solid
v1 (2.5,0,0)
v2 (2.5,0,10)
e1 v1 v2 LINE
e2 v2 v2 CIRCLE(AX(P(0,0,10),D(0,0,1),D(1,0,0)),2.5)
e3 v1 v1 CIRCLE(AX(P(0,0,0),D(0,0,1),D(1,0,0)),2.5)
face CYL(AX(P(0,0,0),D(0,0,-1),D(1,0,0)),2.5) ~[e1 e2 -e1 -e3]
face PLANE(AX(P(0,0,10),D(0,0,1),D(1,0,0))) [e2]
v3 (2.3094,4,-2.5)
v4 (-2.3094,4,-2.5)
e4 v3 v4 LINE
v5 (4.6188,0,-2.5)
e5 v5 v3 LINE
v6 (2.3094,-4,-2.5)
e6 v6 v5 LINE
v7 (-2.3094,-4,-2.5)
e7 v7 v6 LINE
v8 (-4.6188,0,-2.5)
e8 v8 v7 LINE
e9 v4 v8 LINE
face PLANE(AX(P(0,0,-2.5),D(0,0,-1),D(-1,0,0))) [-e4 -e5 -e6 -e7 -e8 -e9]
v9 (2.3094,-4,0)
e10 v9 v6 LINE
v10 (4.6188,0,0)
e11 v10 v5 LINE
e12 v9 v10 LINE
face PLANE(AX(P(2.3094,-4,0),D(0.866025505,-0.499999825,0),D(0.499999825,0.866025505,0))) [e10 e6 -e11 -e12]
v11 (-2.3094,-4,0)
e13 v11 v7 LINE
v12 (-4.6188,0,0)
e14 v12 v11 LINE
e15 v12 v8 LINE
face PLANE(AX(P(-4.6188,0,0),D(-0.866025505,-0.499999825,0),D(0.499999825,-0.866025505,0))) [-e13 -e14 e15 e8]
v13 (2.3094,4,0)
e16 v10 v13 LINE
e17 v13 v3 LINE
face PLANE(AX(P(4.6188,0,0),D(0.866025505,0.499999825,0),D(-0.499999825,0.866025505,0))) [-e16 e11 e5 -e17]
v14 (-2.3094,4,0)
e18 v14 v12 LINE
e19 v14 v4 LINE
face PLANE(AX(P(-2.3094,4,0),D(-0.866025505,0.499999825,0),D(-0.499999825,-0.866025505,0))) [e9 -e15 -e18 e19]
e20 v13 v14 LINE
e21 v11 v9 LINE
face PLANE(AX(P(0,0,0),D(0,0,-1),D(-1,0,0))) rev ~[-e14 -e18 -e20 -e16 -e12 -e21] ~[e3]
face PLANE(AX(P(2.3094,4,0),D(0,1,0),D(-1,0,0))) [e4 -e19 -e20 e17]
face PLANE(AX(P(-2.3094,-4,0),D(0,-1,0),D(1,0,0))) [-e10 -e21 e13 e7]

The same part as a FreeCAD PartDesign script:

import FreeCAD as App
import Part
import Sketcher
from FreeCAD import Vector
Q = App.Units.Quantity

doc = App.newDocument("Part")
params = doc.addObject("Spreadsheet::Sheet", "Params")
for row, (alias, value) in enumerate([
    ("sketch1_diameter", "5 mm"),
    ("pad1_length", "10 mm"),
    ("pad2_length", "2.5 mm"),
], start=1):
    params.set(f"A{row}", alias)
    params.set(f"B{row}", "=" + value)
    params.setAlias(f"B{row}", alias)

body = doc.addObject("PartDesign::Body", "Body")

sketch1 = doc.addObject("Sketcher::SketchObject", "Sketch")
body.addObject(sketch1)
sketch1.AttachmentSupport = (doc.XY_Plane, [""])
sketch1.MapMode = "FlatFace"
sketch1.addGeometry(Part.Circle(Vector(0, 0, 0), Vector(0, 0, 1), 2.5), False)
sketch1.addConstraint([
    Sketcher.Constraint("Coincident", 0, 3, -1, 1),
    Sketcher.Constraint("Diameter", 0, Q("5 mm")),
])
sketch1.setExpression("Constraints[1]", "Params.sketch1_diameter")
pad1 = doc.addObject("PartDesign::Pad", "Pad")
body.addObject(pad1)
pad1.Profile = sketch1
pad1.setExpression("Length", "Params.pad1_length")

sketch2 = doc.addObject("Sketcher::SketchObject", "Sketch001")
body.addObject(sketch2)
sketch2.AttachmentSupport = (doc.XY_Plane, [""])
sketch2.MapMode = "FlatFace"
sketch2.addGeometry([
    Part.LineSegment(Vector(-2.3, -4, 0), Vector(-4.6, 0, 0)),
    Part.LineSegment(Vector(-4.6, 0, 0), Vector(-2.3, 4, 0)),
    Part.LineSegment(Vector(-2.3, 4, 0), Vector(2.3, 4, 0)),
    Part.LineSegment(Vector(2.3, 4, 0), Vector(4.6, 0, 0)),
    Part.LineSegment(Vector(4.6, 0, 0), Vector(2.3, -4, 0)),
    Part.LineSegment(Vector(2.3, -4, 0), Vector(-2.3, -4, 0)),
], False)
sketch2.addConstraint([
    Sketcher.Constraint("Coincident", 0, 2, 1, 1),
    Sketcher.Constraint("Coincident", 1, 2, 2, 1),
    Sketcher.Constraint("Coincident", 2, 2, 3, 1),
    Sketcher.Constraint("Coincident", 3, 2, 4, 1),
    Sketcher.Constraint("Coincident", 4, 2, 5, 1),
    Sketcher.Constraint("Coincident", 5, 2, 0, 1),
    Sketcher.Constraint("Horizontal", 2),
    Sketcher.Constraint("Horizontal", 5),
    Sketcher.Constraint("Symmetric", 0, 2, 3, 2, -1, 1),
    Sketcher.Constraint("Symmetric", 1, 2, 4, 2, -1, 1),
    Sketcher.Constraint("PointOnObject", 0, 2, -1),
    Sketcher.Constraint("Parallel", 0, 3),
    Sketcher.Constraint("Vertical", 2, 2, 4, 2),
    Sketcher.Constraint("DistanceY", 4, 2, 2, 2, Q("8 mm")),
    Sketcher.Constraint("Angle", 0, Q("120 deg")),
    Sketcher.Constraint("DistanceX", 2, 1, 2, 2, Q("4.6188 mm")),
])
pad2 = doc.addObject("PartDesign::Pad", "Pad001")
body.addObject(pad2)
pad2.Profile = sketch2
pad2.setExpression("Length", "Params.pad2_length")
pad2.Reversed = True

doc.recompute()
